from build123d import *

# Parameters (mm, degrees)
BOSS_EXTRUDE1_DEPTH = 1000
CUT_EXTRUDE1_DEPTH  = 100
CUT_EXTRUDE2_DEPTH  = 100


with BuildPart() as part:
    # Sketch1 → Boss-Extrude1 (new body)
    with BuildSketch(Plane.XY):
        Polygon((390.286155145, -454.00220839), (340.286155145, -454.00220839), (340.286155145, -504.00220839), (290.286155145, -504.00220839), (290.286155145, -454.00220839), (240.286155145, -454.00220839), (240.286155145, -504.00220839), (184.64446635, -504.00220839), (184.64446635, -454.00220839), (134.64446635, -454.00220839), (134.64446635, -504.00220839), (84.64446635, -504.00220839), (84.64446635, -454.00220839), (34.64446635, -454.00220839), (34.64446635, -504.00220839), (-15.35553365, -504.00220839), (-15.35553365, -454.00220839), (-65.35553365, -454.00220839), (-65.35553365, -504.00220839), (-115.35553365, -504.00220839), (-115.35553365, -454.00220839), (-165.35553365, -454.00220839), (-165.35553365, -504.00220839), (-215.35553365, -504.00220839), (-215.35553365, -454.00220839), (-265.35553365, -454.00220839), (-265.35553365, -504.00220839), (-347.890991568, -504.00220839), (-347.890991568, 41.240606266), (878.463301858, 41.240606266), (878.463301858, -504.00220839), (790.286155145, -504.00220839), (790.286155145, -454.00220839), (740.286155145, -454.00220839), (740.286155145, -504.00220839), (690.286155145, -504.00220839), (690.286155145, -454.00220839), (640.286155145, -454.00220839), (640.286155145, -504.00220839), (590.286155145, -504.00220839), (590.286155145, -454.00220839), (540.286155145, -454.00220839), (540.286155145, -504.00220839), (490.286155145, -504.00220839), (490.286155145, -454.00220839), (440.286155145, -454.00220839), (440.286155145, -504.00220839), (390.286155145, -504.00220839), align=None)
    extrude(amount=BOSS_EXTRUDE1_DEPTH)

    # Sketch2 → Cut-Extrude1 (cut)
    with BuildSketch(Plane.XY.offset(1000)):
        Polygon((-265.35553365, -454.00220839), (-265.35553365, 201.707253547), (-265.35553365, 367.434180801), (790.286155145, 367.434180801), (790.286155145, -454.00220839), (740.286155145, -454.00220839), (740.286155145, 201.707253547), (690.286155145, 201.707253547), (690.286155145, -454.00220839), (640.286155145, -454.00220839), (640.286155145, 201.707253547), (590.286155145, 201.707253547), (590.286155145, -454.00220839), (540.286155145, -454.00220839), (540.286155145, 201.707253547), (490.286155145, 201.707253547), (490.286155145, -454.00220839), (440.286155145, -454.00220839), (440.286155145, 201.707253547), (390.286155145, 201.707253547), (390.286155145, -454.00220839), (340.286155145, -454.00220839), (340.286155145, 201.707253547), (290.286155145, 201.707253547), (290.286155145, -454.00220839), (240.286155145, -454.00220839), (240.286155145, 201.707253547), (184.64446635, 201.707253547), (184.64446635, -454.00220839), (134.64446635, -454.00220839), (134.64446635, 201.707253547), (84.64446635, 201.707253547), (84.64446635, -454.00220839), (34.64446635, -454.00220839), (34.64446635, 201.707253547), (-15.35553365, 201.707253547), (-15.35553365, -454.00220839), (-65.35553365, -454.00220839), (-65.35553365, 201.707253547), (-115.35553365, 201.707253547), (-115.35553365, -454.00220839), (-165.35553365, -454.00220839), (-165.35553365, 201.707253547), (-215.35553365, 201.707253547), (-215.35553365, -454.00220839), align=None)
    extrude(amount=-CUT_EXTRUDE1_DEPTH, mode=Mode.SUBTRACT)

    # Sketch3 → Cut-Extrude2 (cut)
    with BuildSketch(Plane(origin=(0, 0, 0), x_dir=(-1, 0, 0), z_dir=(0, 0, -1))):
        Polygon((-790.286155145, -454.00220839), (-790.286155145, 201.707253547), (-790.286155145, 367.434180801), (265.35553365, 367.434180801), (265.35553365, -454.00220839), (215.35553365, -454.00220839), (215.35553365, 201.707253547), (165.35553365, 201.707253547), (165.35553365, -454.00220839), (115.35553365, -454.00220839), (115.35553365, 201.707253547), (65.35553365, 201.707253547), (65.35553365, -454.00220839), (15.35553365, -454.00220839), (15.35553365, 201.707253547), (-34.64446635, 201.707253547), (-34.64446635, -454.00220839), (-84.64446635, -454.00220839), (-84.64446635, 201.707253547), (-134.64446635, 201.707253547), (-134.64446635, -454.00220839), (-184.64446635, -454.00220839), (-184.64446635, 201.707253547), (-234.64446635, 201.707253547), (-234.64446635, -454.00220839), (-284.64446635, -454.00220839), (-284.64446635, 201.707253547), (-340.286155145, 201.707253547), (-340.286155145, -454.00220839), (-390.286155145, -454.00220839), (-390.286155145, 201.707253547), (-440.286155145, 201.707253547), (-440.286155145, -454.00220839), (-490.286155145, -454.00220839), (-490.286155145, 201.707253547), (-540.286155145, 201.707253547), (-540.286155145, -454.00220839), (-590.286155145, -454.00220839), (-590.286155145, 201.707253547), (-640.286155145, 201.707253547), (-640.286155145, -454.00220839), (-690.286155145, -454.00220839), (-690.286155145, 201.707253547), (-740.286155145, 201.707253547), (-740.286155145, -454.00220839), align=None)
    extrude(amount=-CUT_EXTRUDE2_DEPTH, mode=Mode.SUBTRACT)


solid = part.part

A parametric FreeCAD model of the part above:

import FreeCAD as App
import Part
import Sketcher
from FreeCAD import Vector


def add_polygon(sketch, points):
    """Adds a closed chain of lines whose ends are joined by coincident constraints."""
    first, n = sketch.GeometryCount, len(points)
    for a, b in zip(points, points[1:] + points[:1]):
        sketch.addGeometry(Part.LineSegment(App.Vector(*a, 0), App.Vector(*b, 0)), False)
    for i in range(n):
        sketch.addConstraint(Sketcher.Constraint("Coincident", first + i, 2, first + (i + 1) % n, 1))

doc = App.newDocument("Part")
body = doc.addObject("PartDesign::Body", "Body")

# Sketch on XY plane
sketch1 = body.newObject("Sketcher::SketchObject", "Sketch")
sketch1.AttachmentSupport = (doc.getObject("XY_Plane"), [""])
sketch1.MapMode = "FlatFace"
add_polygon(sketch1, [(340, -454), (390, -454), (390, -504), (440, -504), (440, -454), (490, -454), (490, -504), (540, -504), (540, -454), (590, -454), (590, -504), (640, -504), (640, -454), (690, -454), (690, -504), (740, -504), (740, -454), (790, -454), (790, -504), (878, -504), (878, 41), (-348, 41), (-348, -504), (-265, -504), (-265, -454), (-215, -454), (-215, -504), (-165, -504), (-165, -454), (-115, -454), (-115, -504), (-65, -504), (-65, -454), (-15, -454), (-15, -504), (35, -504), (35, -454), (85, -454), (85, -504), (135, -504), (135, -454), (185, -454), (185, -504), (240, -504), (240, -454), (290, -454), (290, -504), (340, -504)])  # lines 0-47
sketch1.addConstraint([
    Sketcher.Constraint("Horizontal", 0),
    Sketcher.Constraint("Vertical", 1),
    Sketcher.Constraint("Horizontal", 2),
    Sketcher.Constraint("Vertical", 3),
    Sketcher.Constraint("Horizontal", 4),
    Sketcher.Constraint("Vertical", 5),
    Sketcher.Constraint("Horizontal", 6),
    Sketcher.Constraint("Vertical", 7),
    Sketcher.Constraint("Horizontal", 8),
    Sketcher.Constraint("Vertical", 9),
    Sketcher.Constraint("Horizontal", 10),
    Sketcher.Constraint("Vertical", 11),
    Sketcher.Constraint("Horizontal", 12),
    Sketcher.Constraint("Vertical", 13),
    Sketcher.Constraint("Horizontal", 14),
    Sketcher.Constraint("Vertical", 15),
    Sketcher.Constraint("Horizontal", 16),
    Sketcher.Constraint("Vertical", 17),
    Sketcher.Constraint("Horizontal", 18),
    Sketcher.Constraint("Vertical", 19),
    Sketcher.Constraint("Horizontal", 20),
    Sketcher.Constraint("Vertical", 21),
    Sketcher.Constraint("Horizontal", 22),
    Sketcher.Constraint("Vertical", 23),
    Sketcher.Constraint("Horizontal", 24),
    Sketcher.Constraint("Vertical", 25),
    Sketcher.Constraint("Horizontal", 26),
    Sketcher.Constraint("Vertical", 27),
    Sketcher.Constraint("Horizontal", 28),
    Sketcher.Constraint("Vertical", 29),
    Sketcher.Constraint("Horizontal", 30),
    Sketcher.Constraint("Vertical", 31),
    Sketcher.Constraint("Horizontal", 32),
    Sketcher.Constraint("Vertical", 33),
    Sketcher.Constraint("Horizontal", 34),
    Sketcher.Constraint("Vertical", 35),
    Sketcher.Constraint("Horizontal", 36),
    Sketcher.Constraint("Vertical", 37),
    Sketcher.Constraint("Horizontal", 38),
    Sketcher.Constraint("Vertical", 39),
    Sketcher.Constraint("Horizontal", 40),
    Sketcher.Constraint("Vertical", 41),
    Sketcher.Constraint("Horizontal", 42),
    Sketcher.Constraint("Vertical", 43),
    Sketcher.Constraint("Horizontal", 44),
    Sketcher.Constraint("Vertical", 45),
    Sketcher.Constraint("Horizontal", 46),
    Sketcher.Constraint("Vertical", 47),
    Sketcher.Constraint("Horizontal", 0, 2, 3, 2),
    Sketcher.Constraint("Horizontal", 2, 2, 5, 2),
    Sketcher.Constraint("Horizontal", 4, 2, 7, 2),
    Sketcher.Constraint("Horizontal", 6, 2, 9, 2),
    Sketcher.Constraint("Horizontal", 8, 2, 11, 2),
    Sketcher.Constraint("Horizontal", 10, 2, 13, 2),
    Sketcher.Constraint("Horizontal", 12, 2, 15, 2),
    Sketcher.Constraint("Horizontal", 14, 2, 17, 2),
    Sketcher.Constraint("Horizontal", 18, 2, 21, 2),
    Sketcher.Constraint("Horizontal", 16, 2, 23, 2),
    Sketcher.Constraint("Horizontal", 22, 2, 25, 2),
    Sketcher.Constraint("Horizontal", 24, 2, 27, 2),
    Sketcher.Constraint("Horizontal", 26, 2, 29, 2),
    Sketcher.Constraint("Horizontal", 28, 2, 31, 2),
    Sketcher.Constraint("Horizontal", 30, 2, 33, 2),
    Sketcher.Constraint("Horizontal", 32, 2, 35, 2),
    Sketcher.Constraint("Horizontal", 34, 2, 37, 2),
    Sketcher.Constraint("Horizontal", 36, 2, 39, 2),
    Sketcher.Constraint("Horizontal", 38, 2, 41, 2),
    Sketcher.Constraint("Horizontal", 40, 2, 43, 2),
    Sketcher.Constraint("Horizontal", 42, 2, 45, 2),
    Sketcher.Constraint("Equal", 0, 2),
    Sketcher.Constraint("Equal", 2, 4),
    Sketcher.Constraint("Equal", 4, 6),
    Sketcher.Constraint("Equal", 6, 8),
    Sketcher.Constraint("Equal", 8, 10),
    Sketcher.Constraint("Equal", 10, 12),
    Sketcher.Constraint("Equal", 12, 14),
    Sketcher.Constraint("Equal", 14, 16),
    Sketcher.Constraint("Equal", 16, 24),
    Sketcher.Constraint("Equal", 24, 26),
    Sketcher.Constraint("Equal", 26, 28),
    Sketcher.Constraint("Equal", 28, 30),
    Sketcher.Constraint("Equal", 30, 32),
    Sketcher.Constraint("Equal", 32, 34),
    Sketcher.Constraint("Equal", 34, 36),
    Sketcher.Constraint("Equal", 36, 38),
    Sketcher.Constraint("Equal", 38, 40),
    Sketcher.Constraint("Equal", 40, 44),
    Sketcher.Constraint("Equal", 44, 46),
    Sketcher.Constraint("Equal", 46, 1),
    Sketcher.Constraint("DistanceX", 0, 1, 0, 2, 50.0),
    Sketcher.Constraint("DistanceX", 42, 1, 42, 2, 55.641689),
    Sketcher.Constraint("DistanceX", -1, 1, 18, 2, 878.463302),
    Sketcher.Constraint("DistanceX", 18, 1, 18, 2, 88.177147),
    Sketcher.Constraint("DistanceX", 20, 2, 20, 1, 1226.354293),
    Sketcher.Constraint("DistanceY", 19, 1, 19, 2, 545.242815),
    Sketcher.Constraint("DistanceY", 0, 2, -1, 1, 454.002208),
])
pad1 = body.newObject("PartDesign::Pad", "Pad")
pad1.Profile = sketch1
pad1.Length = 1000

# Sketch on XY plane
sketch2 = body.newObject("Sketcher::SketchObject", "Sketch001")
sketch2.AttachmentSupport = (doc.getObject("XY_Plane"), [""])
sketch2.MapMode = "FlatFace"
sketch2.AttachmentOffset = App.Placement(Vector(0, 0, 1000), App.Rotation())
add_polygon(sketch2, [(-265, 367), (-265, -454), (-215, -454), (-215, 202), (-165, 202), (-165, -454), (-115, -454), (-115, 202), (-65, 202), (-65, -454), (-15, -454), (-15, 202), (35, 202), (35, -454), (85, -454), (85, 202), (135, 202), (135, -454), (185, -454), (185, 202), (240, 202), (240, -454), (290, -454), (290, 202), (340, 202), (340, -454), (390, -454), (390, 202), (440, 202), (440, -454), (490, -454), (490, 202), (540, 202), (540, -454), (590, -454), (590, 202), (640, 202), (640, -454), (690, -454), (690, 202), (740, 202), (740, -454), (790, -454), (790, 367)])  # lines 0-43
sketch2.addConstraint([
    Sketcher.Constraint("Vertical", 0),
    Sketcher.Constraint("Horizontal", 1),
    Sketcher.Constraint("Vertical", 2),
    Sketcher.Constraint("Horizontal", 3),
    Sketcher.Constraint("Vertical", 4),
    Sketcher.Constraint("Horizontal", 5),
    Sketcher.Constraint("Vertical", 6),
    Sketcher.Constraint("Horizontal", 7),
    Sketcher.Constraint("Vertical", 8),
    Sketcher.Constraint("Horizontal", 9),
    Sketcher.Constraint("Vertical", 10),
    Sketcher.Constraint("Horizontal", 11),
    Sketcher.Constraint("Vertical", 12),
    Sketcher.Constraint("Horizontal", 13),
    Sketcher.Constraint("Vertical", 14),
    Sketcher.Constraint("Horizontal", 15),
    Sketcher.Constraint("Vertical", 16),
    Sketcher.Constraint("Horizontal", 17),
    Sketcher.Constraint("Vertical", 18),
    Sketcher.Constraint("Horizontal", 19),
    Sketcher.Constraint("Vertical", 20),
    Sketcher.Constraint("Horizontal", 21),
    Sketcher.Constraint("Vertical", 22),
    Sketcher.Constraint("Horizontal", 23),
    Sketcher.Constraint("Vertical", 24),
    Sketcher.Constraint("Horizontal", 25),
    Sketcher.Constraint("Vertical", 26),
    Sketcher.Constraint("Horizontal", 27),
    Sketcher.Constraint("Vertical", 28),
    Sketcher.Constraint("Horizontal", 29),
    Sketcher.Constraint("Vertical", 30),
    Sketcher.Constraint("Horizontal", 31),
    Sketcher.Constraint("Vertical", 32),
    Sketcher.Constraint("Horizontal", 33),
    Sketcher.Constraint("Vertical", 34),
    Sketcher.Constraint("Horizontal", 35),
    Sketcher.Constraint("Vertical", 36),
    Sketcher.Constraint("Horizontal", 37),
    Sketcher.Constraint("Vertical", 38),
    Sketcher.Constraint("Horizontal", 39),
    Sketcher.Constraint("Vertical", 40),
    Sketcher.Constraint("Horizontal", 41),
    Sketcher.Constraint("Vertical", 42),
    Sketcher.Constraint("Horizontal", 43),
    Sketcher.Constraint("Horizontal", 1, 2, 4, 2),
    Sketcher.Constraint("Horizontal", 3, 2, 6, 2),
    Sketcher.Constraint("Horizontal", 5, 2, 8, 2),
    Sketcher.Constraint("Horizontal", 7, 2, 10, 2),
    Sketcher.Constraint("Horizontal", 9, 2, 12, 2),
    Sketcher.Constraint("Horizontal", 11, 2, 14, 2),
    Sketcher.Constraint("Horizontal", 13, 2, 16, 2),
    Sketcher.Constraint("Horizontal", 15, 2, 18, 2),
    Sketcher.Constraint("Horizontal", 17, 2, 20, 2),
    Sketcher.Constraint("Horizontal", 19, 2, 22, 2),
    Sketcher.Constraint("Horizontal", 21, 2, 24, 2),
    Sketcher.Constraint("Horizontal", 23, 2, 26, 2),
    Sketcher.Constraint("Horizontal", 25, 2, 28, 2),
    Sketcher.Constraint("Horizontal", 27, 2, 30, 2),
    Sketcher.Constraint("Horizontal", 29, 2, 32, 2),
    Sketcher.Constraint("Horizontal", 31, 2, 34, 2),
    Sketcher.Constraint("Horizontal", 33, 2, 36, 2),
    Sketcher.Constraint("Horizontal", 35, 2, 38, 2),
    Sketcher.Constraint("Horizontal", 37, 2, 40, 2),
    Sketcher.Constraint("Equal", 1, 3),
    Sketcher.Constraint("Equal", 3, 5),
    Sketcher.Constraint("Equal", 5, 7),
    Sketcher.Constraint("Equal", 7, 9),
    Sketcher.Constraint("Equal", 9, 11),
    Sketcher.Constraint("Equal", 11, 13),
    Sketcher.Constraint("Equal", 13, 15),
    Sketcher.Constraint("Equal", 15, 17),
    Sketcher.Constraint("Equal", 17, 21),
    Sketcher.Constraint("Equal", 21, 23),
    Sketcher.Constraint("Equal", 23, 25),
    Sketcher.Constraint("Equal", 25, 27),
    Sketcher.Constraint("Equal", 27, 29),
    Sketcher.Constraint("Equal", 29, 31),
    Sketcher.Constraint("Equal", 31, 33),
    Sketcher.Constraint("Equal", 33, 35),
    Sketcher.Constraint("Equal", 35, 37),
    Sketcher.Constraint("Equal", 37, 39),
    Sketcher.Constraint("Equal", 39, 41),
    Sketcher.Constraint("DistanceX", 1, 1, 1, 2, 50.0),
    Sketcher.Constraint("DistanceX", 19, 1, 19, 2, 55.641689),
    Sketcher.Constraint("DistanceY", 0, 2, 0, 1, 821.436389),
    Sketcher.Constraint("DistanceY", 2, 1, 2, 2, 655.709462),
    Sketcher.Constraint("DistanceY", 0, 2, -1, 1, 454.002208),
    Sketcher.Constraint("DistanceX", 0, 2, -1, 1, 265.355534),
])
pocket1 = body.newObject("PartDesign::Pocket", "Pocket")
pocket1.Profile = sketch2
pocket1.Length = 100

# Sketch on XY plane
sketch3 = body.newObject("Sketcher::SketchObject", "Sketch002")
sketch3.AttachmentSupport = (doc.getObject("XY_Plane"), [""])
sketch3.MapMode = "FlatFace"
add_polygon(sketch3, [(790, 367), (790, -454), (740, -454), (740, 202), (690, 202), (690, -454), (640, -454), (640, 202), (590, 202), (590, -454), (540, -454), (540, 202), (490, 202), (490, -454), (440, -454), (440, 202), (390, 202), (390, -454), (340, -454), (340, 202), (285, 202), (285, -454), (235, -454), (235, 202), (185, 202), (185, -454), (135, -454), (135, 202), (85, 202), (85, -454), (35, -454), (35, 202), (-15, 202), (-15, -454), (-65, -454), (-65, 202), (-115, 202), (-115, -454), (-165, -454), (-165, 202), (-215, 202), (-215, -454), (-265, -454), (-265, 367)])  # lines 0-43
sketch3.addConstraint([
    Sketcher.Constraint("Vertical", 0),
    Sketcher.Constraint("Horizontal", 1),
    Sketcher.Constraint("Vertical", 2),
    Sketcher.Constraint("Horizontal", 3),
    Sketcher.Constraint("Vertical", 4),
    Sketcher.Constraint("Horizontal", 5),
    Sketcher.Constraint("Vertical", 6),
    Sketcher.Constraint("Horizontal", 7),
    Sketcher.Constraint("Vertical", 8),
    Sketcher.Constraint("Horizontal", 9),
    Sketcher.Constraint("Vertical", 10),
    Sketcher.Constraint("Horizontal", 11),
    Sketcher.Constraint("Vertical", 12),
    Sketcher.Constraint("Horizontal", 13),
    Sketcher.Constraint("Vertical", 14),
    Sketcher.Constraint("Horizontal", 15),
    Sketcher.Constraint("Vertical", 16),
    Sketcher.Constraint("Horizontal", 17),
    Sketcher.Constraint("Vertical", 18),
    Sketcher.Constraint("Horizontal", 19),
    Sketcher.Constraint("Vertical", 20),
    Sketcher.Constraint("Horizontal", 21),
    Sketcher.Constraint("Vertical", 22),
    Sketcher.Constraint("Horizontal", 23),
    Sketcher.Constraint("Vertical", 24),
    Sketcher.Constraint("Horizontal", 25),
    Sketcher.Constraint("Vertical", 26),
    Sketcher.Constraint("Horizontal", 27),
    Sketcher.Constraint("Vertical", 28),
    Sketcher.Constraint("Horizontal", 29),
    Sketcher.Constraint("Vertical", 30),
    Sketcher.Constraint("Horizontal", 31),
    Sketcher.Constraint("Vertical", 32),
    Sketcher.Constraint("Horizontal", 33),
    Sketcher.Constraint("Vertical", 34),
    Sketcher.Constraint("Horizontal", 35),
    Sketcher.Constraint("Vertical", 36),
    Sketcher.Constraint("Horizontal", 37),
    Sketcher.Constraint("Vertical", 38),
    Sketcher.Constraint("Horizontal", 39),
    Sketcher.Constraint("Vertical", 40),
    Sketcher.Constraint("Horizontal", 41),
    Sketcher.Constraint("Vertical", 42),
    Sketcher.Constraint("Horizontal", 43),
    Sketcher.Constraint("Horizontal", 1, 2, 4, 2),
    Sketcher.Constraint("Horizontal", 3, 2, 6, 2),
    Sketcher.Constraint("Horizontal", 5, 2, 8, 2),
    Sketcher.Constraint("Horizontal", 7, 2, 10, 2),
    Sketcher.Constraint("Horizontal", 9, 2, 12, 2),
    Sketcher.Constraint("Horizontal", 11, 2, 14, 2),
    Sketcher.Constraint("Horizontal", 13, 2, 16, 2),
    Sketcher.Constraint("Horizontal", 15, 2, 18, 2),
    Sketcher.Constraint("Horizontal", 17, 2, 20, 2),
    Sketcher.Constraint("Horizontal", 19, 2, 22, 2),
    Sketcher.Constraint("Horizontal", 21, 2, 24, 2),
    Sketcher.Constraint("Horizontal", 23, 2, 26, 2),
    Sketcher.Constraint("Horizontal", 25, 2, 28, 2),
    Sketcher.Constraint("Horizontal", 27, 2, 30, 2),
    Sketcher.Constraint("Horizontal", 29, 2, 32, 2),
    Sketcher.Constraint("Horizontal", 31, 2, 34, 2),
    Sketcher.Constraint("Horizontal", 33, 2, 36, 2),
    Sketcher.Constraint("Horizontal", 35, 2, 38, 2),
    Sketcher.Constraint("Horizontal", 37, 2, 40, 2),
    Sketcher.Constraint("Equal", 1, 3),
    Sketcher.Constraint("Equal", 3, 5),
    Sketcher.Constraint("Equal", 5, 7),
    Sketcher.Constraint("Equal", 7, 9),
    Sketcher.Constraint("Equal", 9, 11),
    Sketcher.Constraint("Equal", 11, 13),
    Sketcher.Constraint("Equal", 13, 15),
    Sketcher.Constraint("Equal", 15, 17),
    Sketcher.Constraint("Equal", 17, 21),
    Sketcher.Constraint("Equal", 21, 23),
    Sketcher.Constraint("Equal", 23, 25),
    Sketcher.Constraint("Equal", 25, 27),
    Sketcher.Constraint("Equal", 27, 29),
    Sketcher.Constraint("Equal", 29, 31),
    Sketcher.Constraint("Equal", 31, 33),
    Sketcher.Constraint("Equal", 33, 35),
    Sketcher.Constraint("Equal", 35, 37),
    Sketcher.Constraint("Equal", 37, 39),
    Sketcher.Constraint("Equal", 39, 41),
    Sketcher.Constraint("DistanceX", 1, 2, 1, 1, 50.0),
    Sketcher.Constraint("DistanceX", 19, 2, 19, 1, 55.641689),
    Sketcher.Constraint("DistanceY", 0, 2, 0, 1, 821.436389),
    Sketcher.Constraint("DistanceY", 2, 1, 2, 2, 655.709462),
    Sketcher.Constraint("DistanceY", 0, 2, -1, 1, 454.002208),
    Sketcher.Constraint("DistanceX", -1, 1, 0, 2, 790.286155),
])
pocket2 = body.newObject("PartDesign::Pocket", "Pocket001")
pocket2.Profile = sketch3
pocket2.Length = 100
pocket2.Reversed = True

doc.recompute()
